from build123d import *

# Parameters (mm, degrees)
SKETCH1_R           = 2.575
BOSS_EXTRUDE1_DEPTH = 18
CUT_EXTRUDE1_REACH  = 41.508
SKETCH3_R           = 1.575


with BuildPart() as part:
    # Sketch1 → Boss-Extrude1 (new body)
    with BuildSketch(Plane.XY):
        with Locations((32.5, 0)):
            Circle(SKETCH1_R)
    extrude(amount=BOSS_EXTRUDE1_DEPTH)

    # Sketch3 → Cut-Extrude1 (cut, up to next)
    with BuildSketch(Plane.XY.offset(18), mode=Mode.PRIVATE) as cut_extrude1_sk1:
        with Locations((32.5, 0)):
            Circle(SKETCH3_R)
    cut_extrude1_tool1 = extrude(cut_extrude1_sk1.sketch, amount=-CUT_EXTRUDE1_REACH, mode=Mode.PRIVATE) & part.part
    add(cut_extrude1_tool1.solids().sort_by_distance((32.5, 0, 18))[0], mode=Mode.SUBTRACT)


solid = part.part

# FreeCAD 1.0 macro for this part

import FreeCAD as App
import Part
import Sketcher
from FreeCAD import Vector
Q = App.Units.Quantity

doc = App.newDocument("Part")
body = doc.addObject("PartDesign::Body", "Body")

sketch1 = body.newObject("Sketcher::SketchObject", "Sketch")
sketch1.AttachmentSupport = (doc.getObject("XY_Plane"), [""])
sketch1.MapMode = "FlatFace"
sketch1.addGeometry(Part.Circle(Vector(32.5, 0, 0), Vector(0, 0, 1), 2.575), False)
sketch1.addConstraint([
    Sketcher.Constraint("PointOnObject", 0, 3, -1),
    Sketcher.Constraint("Diameter", 0, Q("5.15 mm")),
    Sketcher.Constraint("DistanceX", -1, 1, 0, 3, Q("32.5 mm")),
])
pad1 = body.newObject("PartDesign::Pad", "Pad")
pad1.Profile = sketch1
pad1.Length = 18

sketch2 = body.newObject("Sketcher::SketchObject", "Sketch001")
sketch2.AttachmentSupport = (doc.getObject("XY_Plane"), [""])
sketch2.MapMode = "FlatFace"
sketch2.AttachmentOffset = App.Placement(Vector(0, 0, 18), App.Rotation())
sketch2.addGeometry(Part.Circle(Vector(32.5, 0, 0), Vector(0, 0, 1), 1.575), False)
sketch2.addConstraint([
    Sketcher.Constraint("PointOnObject", 0, 3, -1),
    Sketcher.Constraint("Diameter", 0, Q("3.15 mm")),
    Sketcher.Constraint("DistanceX", -1, 1, 0, 3, Q("32.5 mm")),
])
pocket1 = body.newObject("PartDesign::Pocket", "Pocket")
pocket1.Profile = sketch2
pocket1.Type = "UpToFirst"

doc.recompute()
